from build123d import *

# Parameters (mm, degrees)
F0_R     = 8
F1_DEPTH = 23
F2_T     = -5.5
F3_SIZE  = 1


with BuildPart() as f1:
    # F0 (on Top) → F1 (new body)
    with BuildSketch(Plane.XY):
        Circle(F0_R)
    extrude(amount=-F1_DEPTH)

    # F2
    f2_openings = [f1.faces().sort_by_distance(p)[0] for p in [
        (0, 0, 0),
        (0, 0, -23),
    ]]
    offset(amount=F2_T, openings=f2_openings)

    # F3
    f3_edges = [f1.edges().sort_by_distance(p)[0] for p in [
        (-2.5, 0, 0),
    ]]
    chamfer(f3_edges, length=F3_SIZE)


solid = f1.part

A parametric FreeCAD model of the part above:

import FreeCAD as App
import Part
import Sketcher


def edges_at(feature, points):
    """Names of the edges that pass closest to the given points."""
    edges = feature.Shape.Edges
    near = lambda p: min(range(len(edges)), key=lambda i: edges[i].distToShape(Part.Vertex(*p))[0])
    return sorted({f"Edge{near(p) + 1}" for p in points})


def faces_at(feature, points):
    """Names of the faces that lie closest to the given points."""
    faces = feature.Shape.Faces
    near = lambda p: min(range(len(faces)), key=lambda i: faces[i].distToShape(Part.Vertex(*p))[0])
    return sorted({f"Face{near(p) + 1}" for p in points})

doc = App.newDocument("Part")
body = doc.addObject("PartDesign::Body", "Body")

# Sketch on XY plane
sketch1 = body.newObject("Sketcher::SketchObject", "Sketch")
sketch1.AttachmentSupport = (doc.getObject("XY_Plane"), [""])
sketch1.MapMode = "FlatFace"
sketch1.addGeometry(Part.Circle(App.Vector(0, 0, 0), App.Vector(0, 0, 1), 8), False)
sketch1.addConstraint(Sketcher.Constraint("Coincident", 0, 3, -1, 1))
sketch1.addConstraint(Sketcher.Constraint("Diameter", 0, 16.0))
pad1 = body.newObject("PartDesign::Pad", "Pad")
pad1.Profile = sketch1
pad1.Length = 23
pad1.Reversed = True
doc.recompute()

thickness = body.newObject("PartDesign::Thickness", "Thickness")
thickness.Base = (pad1, faces_at(pad1, [(0, 0, 0), (0, 0, -23)]))
thickness.Value = 5.5
thickness.Reversed = True
thickness.Join = "Arc"
doc.recompute()

chamfer = body.newObject("PartDesign::Chamfer", "Chamfer")
chamfer.Base = (thickness, edges_at(thickness, [(-2.5, 0, 0)]))
chamfer.Size = 1

doc.recompute()
